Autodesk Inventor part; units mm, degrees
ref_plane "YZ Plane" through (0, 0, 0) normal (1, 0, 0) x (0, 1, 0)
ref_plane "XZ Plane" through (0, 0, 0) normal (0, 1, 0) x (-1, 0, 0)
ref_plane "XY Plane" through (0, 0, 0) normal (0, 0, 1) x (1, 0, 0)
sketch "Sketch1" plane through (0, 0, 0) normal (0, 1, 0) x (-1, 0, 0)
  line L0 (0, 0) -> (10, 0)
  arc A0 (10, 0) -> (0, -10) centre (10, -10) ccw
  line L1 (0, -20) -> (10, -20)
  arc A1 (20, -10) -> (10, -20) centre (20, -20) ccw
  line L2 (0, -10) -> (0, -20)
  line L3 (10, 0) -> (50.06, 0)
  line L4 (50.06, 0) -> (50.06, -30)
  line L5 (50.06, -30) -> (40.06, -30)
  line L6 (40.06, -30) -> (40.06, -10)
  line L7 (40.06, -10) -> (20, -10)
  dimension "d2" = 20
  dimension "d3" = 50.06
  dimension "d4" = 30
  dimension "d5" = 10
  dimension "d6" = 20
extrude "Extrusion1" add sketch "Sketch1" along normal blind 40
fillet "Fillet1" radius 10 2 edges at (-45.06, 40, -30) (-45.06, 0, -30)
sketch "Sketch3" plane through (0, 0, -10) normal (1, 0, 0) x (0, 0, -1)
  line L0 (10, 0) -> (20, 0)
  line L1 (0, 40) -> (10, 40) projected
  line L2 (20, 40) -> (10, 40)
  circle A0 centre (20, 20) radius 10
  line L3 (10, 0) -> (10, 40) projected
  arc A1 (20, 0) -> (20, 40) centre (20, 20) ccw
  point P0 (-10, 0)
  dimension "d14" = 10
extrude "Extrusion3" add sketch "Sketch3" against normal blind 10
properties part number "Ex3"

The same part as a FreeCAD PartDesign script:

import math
import FreeCAD as App
import Part
import Sketcher


def edges_at(feature, points):
    """Names of the edges that pass closest to the given points."""
    edges = feature.Shape.Edges
    near = lambda p: min(range(len(edges)), key=lambda i: edges[i].distToShape(Part.Vertex(*p))[0])
    return sorted({f"Edge{near(p) + 1}" for p in points})

doc = App.newDocument("Part")
body = doc.addObject("PartDesign::Body", "Body")

# Sketch on XZ plane
sketch1 = doc.addObject("Sketcher::SketchObject", "Sketch")
body.addObject(sketch1)
sketch1.AttachmentSupport = (doc.XZ_Plane, [""])
sketch1.MapMode = "FlatFace"
sketch1.addGeometry([
    Part.LineSegment(App.Vector(-50.06, 0, 0), App.Vector(-10, 0, 0)),  # 0
    Part.ArcOfCircle(Part.Circle(App.Vector(-10, -10, 0), App.Vector(0, 0, 1), 10), math.radians(0), math.radians(90)),  # 1
    Part.LineSegment(App.Vector(0, -10, 0), App.Vector(0, -20, 0)),  # 2
    Part.LineSegment(App.Vector(0, -20, 0), App.Vector(-10, -20, 0)),  # 3
    Part.ArcOfCircle(Part.Circle(App.Vector(-20, -20, 0), App.Vector(0, 0, 1), 10), math.radians(0), math.radians(90)),  # 4
    Part.LineSegment(App.Vector(-20, -10, 0), App.Vector(-40.06, -10, 0)),  # 5
    Part.LineSegment(App.Vector(-40.06, -10, 0), App.Vector(-40.06, -30, 0)),  # 6
    Part.LineSegment(App.Vector(-40.06, -30, 0), App.Vector(-50.06, -30, 0)),  # 7
    Part.LineSegment(App.Vector(-50.06, -30, 0), App.Vector(-50.06, 0, 0)),  # 8
], False)
sketch1.addConstraint([
    Sketcher.Constraint("Tangent", 0, 2, 1, 2),
    Sketcher.Constraint("Tangent", 1, 1, 2, 1),
    Sketcher.Constraint("Coincident", 2, 2, 3, 1),
    Sketcher.Constraint("Coincident", 3, 2, 4, 1),
    Sketcher.Constraint("Tangent", 4, 2, 5, 1),
    Sketcher.Constraint("Coincident", 5, 2, 6, 1),
    Sketcher.Constraint("Coincident", 6, 2, 7, 1),
    Sketcher.Constraint("Coincident", 7, 2, 8, 1),
    Sketcher.Constraint("Coincident", 8, 2, 0, 1),
    Sketcher.Constraint("Horizontal", 0),
    Sketcher.Constraint("Vertical", 2),
    Sketcher.Constraint("Horizontal", 3),
    Sketcher.Constraint("Horizontal", 5),
    Sketcher.Constraint("Vertical", 6),
    Sketcher.Constraint("Horizontal", 7),
    Sketcher.Constraint("Vertical", 8),
    Sketcher.Constraint("Equal", 1, 4),
    Sketcher.Constraint("PointOnObject", 0, 2, -1),
    Sketcher.Constraint("PointOnObject", 1, 1, -2),
    Sketcher.Constraint("Horizontal", 4, 3, 2, 2),
    Sketcher.Constraint("Horizontal", 1, 1, 4, 2),
    Sketcher.Constraint("Vertical", 0, 2, 3, 2),
    Sketcher.Constraint("Equal", 3, 7),
    Sketcher.Constraint("Radius", 1, 10.0),
    Sketcher.Constraint("DistanceY", 6, 2, 6, 1, 20.0),
    Sketcher.Constraint("DistanceX", 7, 2, -1, 1, 50.06),
])
pad1 = doc.addObject("PartDesign::Pad", "Pad")
body.addObject(pad1)
pad1.Profile = sketch1
pad1.Length = 40
pad1.Reversed = True
doc.recompute()

fillet = doc.addObject("PartDesign::Fillet", "Fillet")
body.addObject(fillet)
fillet.Base = (pad1, edges_at(pad1, [(-45.06, 40, -30), (-45.06, 0, -30)]))
fillet.Radius = 10

# Sketch on YZ plane
sketch2 = doc.addObject("Sketcher::SketchObject", "Sketch001")
body.addObject(sketch2)
sketch2.AttachmentSupport = (doc.YZ_Plane, [""])
sketch2.MapMode = "FlatFace"
sketch2.addGeometry([
    Part.LineSegment(App.Vector(20, -20, 0), App.Vector(0, -20, 0)),  # 0
    Part.LineSegment(App.Vector(0, -20, 0), App.Vector(0, -30, 0)),  # 1
    Part.ArcOfCircle(Part.Circle(App.Vector(20, -30, 0), App.Vector(0, 0, 1), 20), math.radians(180), math.radians(360)),  # 2
    Part.LineSegment(App.Vector(40, -30, 0), App.Vector(40, -20, 0)),  # 3
    Part.LineSegment(App.Vector(40, -20, 0), App.Vector(20, -20, 0)),  # 4
    Part.Circle(App.Vector(20, -30, 0), App.Vector(0, 0, 1), 10),  # 5
], False)
sketch2.addConstraint([
    Sketcher.Constraint("Coincident", 0, 2, 1, 1),
    Sketcher.Constraint("Tangent", 1, 2, 2, 1),
    Sketcher.Constraint("Tangent", 2, 2, 3, 1),
    Sketcher.Constraint("Coincident", 3, 2, 4, 1),
    Sketcher.Constraint("Coincident", 4, 2, 0, 1),
    Sketcher.Constraint("Horizontal", 0),
    Sketcher.Constraint("Vertical", 1),
    Sketcher.Constraint("Vertical", 3),
    Sketcher.Constraint("Horizontal", 4),
    Sketcher.Constraint("Coincident", 5, 3, 2, 3),
    Sketcher.Constraint("PointOnObject", 0, 2, -2),
    Sketcher.Constraint("Vertical", 5, 3, 4, 2),
    Sketcher.Constraint("Diameter", 5, 20.0),
    Sketcher.Constraint("DistanceY", 1, 2, 1, 1, 10.0),
    Sketcher.Constraint("Radius", 2, 20.0),
    Sketcher.Constraint("DistanceY", 2, 3, -1, 1, 30.0),
])
pad2 = doc.addObject("PartDesign::Pad", "Pad001")
body.addObject(pad2)
pad2.Profile = sketch2
pad2.Length = 10
pad2.Reversed = True

doc.recompute()
